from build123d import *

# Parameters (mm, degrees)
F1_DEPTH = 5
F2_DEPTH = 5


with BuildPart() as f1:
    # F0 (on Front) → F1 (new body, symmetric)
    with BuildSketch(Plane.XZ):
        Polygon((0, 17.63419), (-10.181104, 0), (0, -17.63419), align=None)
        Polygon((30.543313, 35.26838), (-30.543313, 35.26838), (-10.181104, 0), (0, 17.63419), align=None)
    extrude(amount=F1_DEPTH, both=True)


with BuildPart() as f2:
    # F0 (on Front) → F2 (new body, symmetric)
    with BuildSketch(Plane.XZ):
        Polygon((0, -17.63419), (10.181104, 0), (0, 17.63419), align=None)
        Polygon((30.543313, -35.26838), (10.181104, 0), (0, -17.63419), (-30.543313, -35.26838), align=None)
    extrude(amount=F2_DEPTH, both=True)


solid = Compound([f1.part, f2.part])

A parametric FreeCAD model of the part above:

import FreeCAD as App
import Part
import Sketcher
from FreeCAD import Vector
Q = App.Units.Quantity


def add_polygon(sketch, points):
    """Adds a closed chain of lines whose ends are joined by coincident constraints."""
    first, n = sketch.GeometryCount, len(points)
    for a, b in zip(points, points[1:] + points[:1]):
        sketch.addGeometry(Part.LineSegment(App.Vector(*a, 0), App.Vector(*b, 0)), False)
    for i in range(n):
        sketch.addConstraint(Sketcher.Constraint("Coincident", first + i, 2, first + (i + 1) % n, 1))

doc = App.newDocument("Part")
params = doc.addObject("Spreadsheet::Sheet", "Params")
for row, (alias, value) in enumerate([
    ("pad1_length", "10 mm"),
    ("pad2_length", "10 mm"),
], start=1):
    params.set(f"A{row}", alias)
    params.set(f"B{row}", "=" + value)
    params.setAlias(f"B{row}", alias)

body = doc.addObject("PartDesign::Body", "Body")

# Sketch on XZ plane
sketch1 = body.newObject("Sketcher::SketchObject", "Sketch")
sketch1.AttachmentSupport = (doc.getObject("XZ_Plane"), [""])
sketch1.MapMode = "FlatFace"
add_polygon(sketch1, [(-10, 0), (0, -18), (0, 18), (31, 35), (-31, 35)])  # lines 0-4
sketch1.addConstraint([
    Sketcher.Constraint("Vertical", 1),
    Sketcher.Constraint("Horizontal", 3),
    Sketcher.Constraint("Symmetric", 0, 2, 1, 2, -1, 1),
    Sketcher.Constraint("PointOnObject", 4, 2, -1),
    Sketcher.Constraint("Perpendicular", 0, 2),
    Sketcher.Constraint("Perpendicular", 2, 4),
    Sketcher.Constraint("Angle", 0, Q("-60.000001 deg")),
    Sketcher.Constraint("DistanceY", 1, 1, 1, 2, 35.26838),
    Sketcher.Constraint("Distance", 2, 35.26838),
])
pad1 = body.newObject("PartDesign::Pad", "Pad")
pad1.Profile = sketch1
pad1.setExpression("Length", "Params.pad1_length")
pad1.Midplane = True
body2 = doc.addObject("PartDesign::Body", "Body001")

# Sketch on XZ plane
sketch2 = body2.newObject("Sketcher::SketchObject", "Sketch001")
sketch2.AttachmentSupport = (doc.getObject("XZ_Plane001"), [""])
sketch2.MapMode = "FlatFace"
add_polygon(sketch2, [(10, 0), (0, 18), (0, -18), (-31, -35), (31, -35)])  # lines 0-4
sketch2.addConstraint([
    Sketcher.Constraint("Vertical", 1),
    Sketcher.Constraint("Horizontal", 3),
    Sketcher.Constraint("Symmetric", 0, 2, 1, 2, -1, 1),
    Sketcher.Constraint("PointOnObject", 4, 2, -1),
    Sketcher.Constraint("Perpendicular", 0, 2),
    Sketcher.Constraint("Perpendicular", 2, 4),
    Sketcher.Constraint("Angle", 0, Q("119.999999 deg")),
    Sketcher.Constraint("DistanceY", 1, 2, 1, 1, 35.26838),
    Sketcher.Constraint("Distance", 2, 35.26838),
])
pad2 = body2.newObject("PartDesign::Pad", "Pad001")
pad2.Profile = sketch2
pad2.setExpression("Length", "Params.pad2_length")
pad2.Midplane = True

doc.recompute()
